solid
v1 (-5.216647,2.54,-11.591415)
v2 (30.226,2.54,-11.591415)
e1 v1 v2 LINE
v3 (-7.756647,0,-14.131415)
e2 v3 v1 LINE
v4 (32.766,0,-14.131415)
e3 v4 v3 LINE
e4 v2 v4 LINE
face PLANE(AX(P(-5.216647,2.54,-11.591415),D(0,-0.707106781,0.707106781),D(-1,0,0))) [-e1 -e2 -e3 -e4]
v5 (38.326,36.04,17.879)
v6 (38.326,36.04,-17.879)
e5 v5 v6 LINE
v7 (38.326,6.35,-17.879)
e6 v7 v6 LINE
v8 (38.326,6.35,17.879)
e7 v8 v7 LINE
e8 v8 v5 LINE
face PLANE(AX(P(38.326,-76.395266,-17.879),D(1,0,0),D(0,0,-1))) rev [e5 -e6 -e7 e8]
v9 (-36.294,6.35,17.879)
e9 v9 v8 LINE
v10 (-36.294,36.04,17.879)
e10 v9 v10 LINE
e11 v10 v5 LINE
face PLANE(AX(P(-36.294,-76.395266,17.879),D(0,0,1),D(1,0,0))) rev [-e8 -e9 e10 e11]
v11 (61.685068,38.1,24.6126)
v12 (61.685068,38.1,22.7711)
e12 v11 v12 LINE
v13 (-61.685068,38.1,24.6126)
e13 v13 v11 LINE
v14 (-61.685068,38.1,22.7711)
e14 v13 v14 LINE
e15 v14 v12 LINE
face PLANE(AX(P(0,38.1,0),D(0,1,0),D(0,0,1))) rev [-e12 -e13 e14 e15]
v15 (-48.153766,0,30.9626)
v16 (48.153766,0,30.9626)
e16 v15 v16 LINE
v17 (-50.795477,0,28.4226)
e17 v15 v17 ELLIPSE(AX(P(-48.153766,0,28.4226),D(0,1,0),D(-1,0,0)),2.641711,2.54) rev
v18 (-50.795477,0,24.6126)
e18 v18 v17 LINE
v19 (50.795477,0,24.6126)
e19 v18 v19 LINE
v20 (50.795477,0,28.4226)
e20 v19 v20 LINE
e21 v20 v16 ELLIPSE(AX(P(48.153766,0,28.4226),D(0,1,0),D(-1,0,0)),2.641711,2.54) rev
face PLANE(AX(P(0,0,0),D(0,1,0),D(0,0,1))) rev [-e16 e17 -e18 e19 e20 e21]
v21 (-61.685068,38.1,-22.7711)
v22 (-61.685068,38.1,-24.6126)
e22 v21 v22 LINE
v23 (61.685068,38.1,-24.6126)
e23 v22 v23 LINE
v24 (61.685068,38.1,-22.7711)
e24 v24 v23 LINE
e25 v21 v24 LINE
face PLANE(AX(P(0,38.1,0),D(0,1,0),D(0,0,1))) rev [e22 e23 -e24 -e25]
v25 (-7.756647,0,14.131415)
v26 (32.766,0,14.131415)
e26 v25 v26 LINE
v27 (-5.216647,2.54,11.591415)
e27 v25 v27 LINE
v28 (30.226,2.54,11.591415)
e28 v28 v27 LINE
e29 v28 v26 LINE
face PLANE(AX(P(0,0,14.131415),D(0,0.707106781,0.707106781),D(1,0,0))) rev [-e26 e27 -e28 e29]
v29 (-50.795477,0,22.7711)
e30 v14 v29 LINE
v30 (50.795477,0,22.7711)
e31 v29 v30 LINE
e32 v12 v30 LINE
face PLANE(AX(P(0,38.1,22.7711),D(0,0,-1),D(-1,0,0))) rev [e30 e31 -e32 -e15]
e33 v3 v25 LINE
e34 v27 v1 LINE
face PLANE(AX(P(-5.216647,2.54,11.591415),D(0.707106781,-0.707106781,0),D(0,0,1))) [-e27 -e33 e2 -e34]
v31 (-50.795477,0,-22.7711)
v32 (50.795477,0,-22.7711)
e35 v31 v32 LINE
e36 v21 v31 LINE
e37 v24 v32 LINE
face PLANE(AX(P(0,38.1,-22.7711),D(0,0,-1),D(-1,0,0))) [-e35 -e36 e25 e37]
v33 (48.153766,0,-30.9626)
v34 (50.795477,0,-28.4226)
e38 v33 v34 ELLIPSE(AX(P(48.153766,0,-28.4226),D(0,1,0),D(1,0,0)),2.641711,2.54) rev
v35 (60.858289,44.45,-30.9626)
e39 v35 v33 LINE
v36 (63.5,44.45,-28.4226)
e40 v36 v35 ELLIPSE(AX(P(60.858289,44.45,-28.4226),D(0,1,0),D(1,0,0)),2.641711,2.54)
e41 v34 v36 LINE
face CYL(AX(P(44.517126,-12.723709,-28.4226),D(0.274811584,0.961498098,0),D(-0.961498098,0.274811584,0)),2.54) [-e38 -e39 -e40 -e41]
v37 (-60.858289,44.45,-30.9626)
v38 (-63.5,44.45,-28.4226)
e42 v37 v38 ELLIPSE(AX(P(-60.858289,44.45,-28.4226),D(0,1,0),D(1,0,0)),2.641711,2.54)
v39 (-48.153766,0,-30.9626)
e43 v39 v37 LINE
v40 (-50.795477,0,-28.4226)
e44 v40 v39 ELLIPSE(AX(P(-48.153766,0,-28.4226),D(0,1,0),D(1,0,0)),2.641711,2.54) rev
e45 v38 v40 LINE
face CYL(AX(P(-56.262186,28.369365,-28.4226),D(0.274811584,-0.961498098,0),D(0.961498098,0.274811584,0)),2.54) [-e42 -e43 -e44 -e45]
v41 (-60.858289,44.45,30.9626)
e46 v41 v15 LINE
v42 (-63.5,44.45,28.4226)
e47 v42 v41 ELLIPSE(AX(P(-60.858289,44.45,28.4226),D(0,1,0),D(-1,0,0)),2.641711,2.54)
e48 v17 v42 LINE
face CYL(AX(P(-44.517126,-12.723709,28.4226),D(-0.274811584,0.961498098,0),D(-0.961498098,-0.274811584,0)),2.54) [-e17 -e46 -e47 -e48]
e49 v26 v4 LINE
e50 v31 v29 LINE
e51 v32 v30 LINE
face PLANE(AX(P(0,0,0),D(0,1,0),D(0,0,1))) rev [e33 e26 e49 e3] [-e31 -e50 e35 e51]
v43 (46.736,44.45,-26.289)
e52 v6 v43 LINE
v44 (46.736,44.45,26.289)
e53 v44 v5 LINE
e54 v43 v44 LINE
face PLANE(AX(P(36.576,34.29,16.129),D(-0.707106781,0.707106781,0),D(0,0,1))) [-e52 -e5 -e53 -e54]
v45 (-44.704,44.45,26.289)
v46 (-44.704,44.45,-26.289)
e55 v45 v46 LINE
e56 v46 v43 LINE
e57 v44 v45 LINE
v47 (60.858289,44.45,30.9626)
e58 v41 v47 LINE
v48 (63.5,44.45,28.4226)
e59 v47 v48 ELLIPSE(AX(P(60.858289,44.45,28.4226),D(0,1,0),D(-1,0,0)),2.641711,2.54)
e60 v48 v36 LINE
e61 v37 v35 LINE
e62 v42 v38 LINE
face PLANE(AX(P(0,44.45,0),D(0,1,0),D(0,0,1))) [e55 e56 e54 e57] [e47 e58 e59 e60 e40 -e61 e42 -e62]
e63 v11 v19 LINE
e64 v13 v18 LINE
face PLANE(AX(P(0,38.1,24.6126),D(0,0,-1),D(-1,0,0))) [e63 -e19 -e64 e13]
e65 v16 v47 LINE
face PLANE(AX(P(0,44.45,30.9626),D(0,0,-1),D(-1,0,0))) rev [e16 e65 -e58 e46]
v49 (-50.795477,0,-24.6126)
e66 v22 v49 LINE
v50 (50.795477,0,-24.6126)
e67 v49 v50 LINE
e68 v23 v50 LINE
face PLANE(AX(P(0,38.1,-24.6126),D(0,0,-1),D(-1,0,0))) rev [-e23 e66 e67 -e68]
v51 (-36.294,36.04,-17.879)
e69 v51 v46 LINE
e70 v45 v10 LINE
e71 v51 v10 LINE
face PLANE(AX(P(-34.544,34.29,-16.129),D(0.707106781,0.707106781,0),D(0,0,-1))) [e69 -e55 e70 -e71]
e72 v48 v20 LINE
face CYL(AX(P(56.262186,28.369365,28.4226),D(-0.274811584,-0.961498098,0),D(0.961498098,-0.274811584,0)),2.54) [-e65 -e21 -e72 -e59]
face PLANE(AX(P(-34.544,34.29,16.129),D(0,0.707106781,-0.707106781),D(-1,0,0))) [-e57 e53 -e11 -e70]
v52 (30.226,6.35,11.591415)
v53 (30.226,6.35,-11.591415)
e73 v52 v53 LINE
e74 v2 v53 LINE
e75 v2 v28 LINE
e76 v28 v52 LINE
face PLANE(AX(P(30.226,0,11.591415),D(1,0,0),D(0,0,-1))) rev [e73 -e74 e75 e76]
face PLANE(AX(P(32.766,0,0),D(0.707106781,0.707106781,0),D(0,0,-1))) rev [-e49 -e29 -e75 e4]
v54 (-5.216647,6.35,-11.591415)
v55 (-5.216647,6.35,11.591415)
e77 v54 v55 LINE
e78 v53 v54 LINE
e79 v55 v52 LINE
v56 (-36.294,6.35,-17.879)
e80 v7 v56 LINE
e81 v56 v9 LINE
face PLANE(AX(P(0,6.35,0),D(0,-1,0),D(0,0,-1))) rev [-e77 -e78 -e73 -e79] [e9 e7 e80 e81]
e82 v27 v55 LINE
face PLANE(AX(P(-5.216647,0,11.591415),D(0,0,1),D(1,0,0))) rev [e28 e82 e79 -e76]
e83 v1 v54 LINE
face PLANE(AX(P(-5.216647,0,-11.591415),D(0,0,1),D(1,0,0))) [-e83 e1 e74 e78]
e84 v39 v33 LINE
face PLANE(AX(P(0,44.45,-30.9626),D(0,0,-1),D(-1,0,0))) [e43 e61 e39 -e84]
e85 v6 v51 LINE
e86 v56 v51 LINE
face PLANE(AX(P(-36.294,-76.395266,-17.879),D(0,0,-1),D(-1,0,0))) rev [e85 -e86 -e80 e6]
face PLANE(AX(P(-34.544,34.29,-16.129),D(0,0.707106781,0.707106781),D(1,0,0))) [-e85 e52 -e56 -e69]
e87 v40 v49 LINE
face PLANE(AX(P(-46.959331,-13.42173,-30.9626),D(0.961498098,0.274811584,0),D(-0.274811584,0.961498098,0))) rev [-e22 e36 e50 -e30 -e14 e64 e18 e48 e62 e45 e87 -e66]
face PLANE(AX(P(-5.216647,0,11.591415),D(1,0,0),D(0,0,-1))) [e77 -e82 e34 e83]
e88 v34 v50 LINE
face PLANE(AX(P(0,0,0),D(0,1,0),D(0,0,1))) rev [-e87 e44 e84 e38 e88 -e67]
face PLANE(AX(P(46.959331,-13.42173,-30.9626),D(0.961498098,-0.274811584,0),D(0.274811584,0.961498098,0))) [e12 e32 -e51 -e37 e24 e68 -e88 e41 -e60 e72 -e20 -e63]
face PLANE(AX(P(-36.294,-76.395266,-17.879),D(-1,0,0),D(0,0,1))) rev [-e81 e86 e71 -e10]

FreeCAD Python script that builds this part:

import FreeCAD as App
import Part
import Sketcher
Q = App.Units.Quantity


def edges_at(feature, points):
    """Names of the edges that pass closest to the given points."""
    edges = feature.Shape.Edges
    near = lambda p: min(range(len(edges)), key=lambda i: edges[i].distToShape(Part.Vertex(*p))[0])
    return sorted({f"Edge{near(p) + 1}" for p in points})


def add_polygon(sketch, points):
    """Adds a closed chain of lines whose ends are joined by coincident constraints."""
    first, n = sketch.GeometryCount, len(points)
    for a, b in zip(points, points[1:] + points[:1]):
        sketch.addGeometry(Part.LineSegment(App.Vector(*a, 0), App.Vector(*b, 0)), False)
    for i in range(n):
        sketch.addConstraint(Sketcher.Constraint("Coincident", first + i, 2, first + (i + 1) % n, 1))

doc = App.newDocument("Part")
body = doc.addObject("PartDesign::Body", "Body")

# Sketch on XZ plane
sketch1 = body.newObject("Sketcher::SketchObject", "Sketch")
sketch1.AttachmentSupport = (doc.getObject("XZ_Plane"), [""])
sketch1.MapMode = "FlatFace"
add_polygon(sketch1, [(-64, -31), (-64, 31), (64, 31), (64, -31)])  # lines 0-3
sketch1.addConstraint(Sketcher.Constraint("Vertical", 0))
sketch1.addConstraint(Sketcher.Constraint("Horizontal", 1))
sketch1.addConstraint(Sketcher.Constraint("Vertical", 2))
sketch1.addConstraint(Sketcher.Constraint("Horizontal", 3))
sketch1.addConstraint(Sketcher.Constraint("Symmetric", 0, 2, 2, 2, -1, 1))
sketch1.addConstraint(Sketcher.Constraint("DistanceX", 1, 1, 1, 2, Q("5 in")))
sketch1.addConstraint(Sketcher.Constraint("DistanceY", 0, 1, 0, 2, Q("2.438 in")))
pad1 = body.newObject("PartDesign::Pad", "Pad")
pad1.Profile = sketch1
pad1.Length = Q("1.75 in")
pad1.Reversed = True

# Sketch on XZ plane
sketch2 = body.newObject("Sketcher::SketchObject", "Sketch001")
sketch2.AttachmentSupport = (doc.getObject("XZ_Plane"), [""])
sketch2.MapMode = "FlatFace"
add_polygon(sketch2, [(-63.5, -24.6), (-63.5, -22.8), (63.5, -22.8), (63.5, -24.6)])  # lines 0-3
add_polygon(sketch2, [(-63.5, 22.8), (-63.5, 24.6), (63.5, 24.6), (63.5, 22.8)])  # lines 4-7
sketch2.addConstraint(Sketcher.Constraint("Vertical", 0))
sketch2.addConstraint(Sketcher.Constraint("Horizontal", 1))
sketch2.addConstraint(Sketcher.Constraint("Vertical", 2))
sketch2.addConstraint(Sketcher.Constraint("Horizontal", 3))
sketch2.addConstraint(Sketcher.Constraint("Vertical", 4))
sketch2.addConstraint(Sketcher.Constraint("Horizontal", 5))
sketch2.addConstraint(Sketcher.Constraint("Vertical", 6))
sketch2.addConstraint(Sketcher.Constraint("Horizontal", 7))
sketch2.addConstraint(Sketcher.Constraint("Symmetric", 2, 2, 4, 2, -1, 1))
sketch2.addConstraint(Sketcher.Constraint("Symmetric", 0, 2, 6, 2, -1, 1))
sketch2.addConstraint(Sketcher.Constraint("Vertical", 3, 2, 4, 2))
sketch2.addConstraint(Sketcher.Constraint("DistanceX", 1, 1, 1, 2, Q("5 in")))
sketch2.addConstraint(Sketcher.Constraint("DistanceY", 0, 1, 0, 2, Q("0.0725 in")))
sketch2.addConstraint(Sketcher.Constraint("DistanceY", 2, 2, -1, 1, Q("0.969 in")))
pocket1 = body.newObject("PartDesign::Pocket", "Pocket")
pocket1.Profile = sketch2
pocket1.Length = Q("1.5 in")

# Sketch on XZ plane
sketch3 = body.newObject("Sketcher::SketchObject", "Sketch002")
sketch3.AttachmentSupport = (doc.getObject("XZ_Plane"), [""])
sketch3.MapMode = "FlatFace"
sketch3.AttachmentOffset = App.Placement(App.Vector(0, 0, -1.75 * 25.4), App.Rotation())
add_polygon(sketch3, [(-35, -16), (-35, 16), (37, 16), (37, -16)])  # lines 0-3
add_polygon(sketch3, [(30, 12), (-5, 12), (-5, -12), (30, -12)])  # lines 4-7
sketch3.addConstraint(Sketcher.Constraint("Vertical", 0))
sketch3.addConstraint(Sketcher.Constraint("Horizontal", 1))
sketch3.addConstraint(Sketcher.Constraint("Vertical", 2))
sketch3.addConstraint(Sketcher.Constraint("Horizontal", 3))
sketch3.addConstraint(Sketcher.Constraint("Horizontal", 4))
sketch3.addConstraint(Sketcher.Constraint("Vertical", 5))
sketch3.addConstraint(Sketcher.Constraint("Horizontal", 6))
sketch3.addConstraint(Sketcher.Constraint("Vertical", 7))
sketch3.addConstraint(Sketcher.Constraint("DistanceX", 1, 1, 1, 2, Q("2.8 in")))
sketch3.addConstraint(Sketcher.Constraint("DistanceY", 0, 1, 0, 2, Q("1.27 in")))
sketch3.addConstraint(Sketcher.Constraint("DistanceX", 0, 2, -1, 1, Q("1.36 in")))
sketch3.addConstraint(Sketcher.Constraint("DistanceX", -1, 1, 6, 2, Q("1.19 in")))
sketch3.addConstraint(Sketcher.Constraint("DistanceY", -1, 1, 0, 2, Q("0.635 in")))
sketch3.addConstraint(Sketcher.Constraint("DistanceY", 5, 2, 5, 1, Q("23.182829 mm")))
sketch3.addConstraint(Sketcher.Constraint("DistanceX", 4, 2, 4, 1, Q("35.442647 mm")))
sketch3.addConstraint(Sketcher.Constraint("DistanceY", -1, 1, 4, 2, Q("11.591415 mm")))
pocket2 = body.newObject("PartDesign::Pocket", "Pocket001")
pocket2.Profile = sketch3
pocket2.Length = Q("1.5 in")
pocket2.Reversed = True
doc.recompute()

chamfer = body.newObject("PartDesign::Chamfer", "Chamfer")
chamfer.Base = (pocket2, edges_at(pocket2, [
    (36.576, 44.45, 0),
    (1.016, 44.45, -16.129),
    (-34.544, 44.45, 0),
    (1.016, 44.45, 16.129),
]))
chamfer.Size = Q("0.4 in")

# Sketch on XY plane
sketch4 = body.newObject("Sketcher::SketchObject", "Sketch003")
sketch4.AttachmentSupport = (doc.getObject("XY_Plane"), [""])
sketch4.MapMode = "FlatFace"
sketch4.AttachmentOffset = App.Placement(App.Vector(0, 0, 1.219 * 25.4), App.Rotation())
add_polygon(sketch4, [(-51, 0), (-64, 44), (-64, 0)])  # lines 0-2
add_polygon(sketch4, [(64, 44), (51, 0), (64, 0)])  # lines 3-5
sketch4.addConstraint(Sketcher.Constraint("Vertical", 1))
sketch4.addConstraint(Sketcher.Constraint("Horizontal", 2))
sketch4.addConstraint(Sketcher.Constraint("Horizontal", 4))
sketch4.addConstraint(Sketcher.Constraint("Vertical", 5))
sketch4.addConstraint(Sketcher.Constraint("Symmetric", 2, 2, 3, 2, -1, 1))
sketch4.addConstraint(Sketcher.Constraint("Symmetric", 1, 2, 4, 2, -2))
sketch4.addConstraint(Sketcher.Constraint("Horizontal", 0, 2, 5, 2))
sketch4.addConstraint(Sketcher.Constraint("DistanceX", 1, 2, 4, 2, Q("5 in")))
sketch4.addConstraint(Sketcher.Constraint("DistanceY", 1, 2, 1, 1, Q("1.75 in")))
sketch4.addConstraint(Sketcher.Constraint("Distance", 0, Q("46.229941 mm")))
pocket3 = body.newObject("PartDesign::Pocket", "Pocket002")
pocket3.Profile = sketch4
pocket3.Type = "ThroughAll"
doc.recompute()

fillet = body.newObject("PartDesign::Fillet", "Fillet")
fillet.Base = (pocket3, edges_at(pocket3, [
    (-57.148, 22.225, -30.963),
    (-57.148, 22.225, 30.963),
    (57.148, 22.225, 30.963),
    (57.148, 22.225, -30.963),
]))
fillet.Radius = Q("0.1 in")

# Sketch on XZ plane
sketch5 = body.newObject("Sketcher::SketchObject", "Sketch004")
sketch5.AttachmentSupport = (doc.getObject("XZ_Plane"), [""])
sketch5.MapMode = "FlatFace"
sketch5.AttachmentOffset = App.Placement(App.Vector(0, 0, -1.75 * 25.4), App.Rotation())
add_polygon(sketch5, [(-5, -12), (-5, 12), (30, 12), (30, -12)])  # lines 0-3
sketch5.addConstraint(Sketcher.Constraint("Vertical", 0))
sketch5.addConstraint(Sketcher.Constraint("Horizontal", 1))
sketch5.addConstraint(Sketcher.Constraint("Vertical", 2))
sketch5.addConstraint(Sketcher.Constraint("Horizontal", 3))
sketch5.addConstraint(Sketcher.Constraint("DistanceX", -1, 1, 1, 2, Q("1.19 in")))
sketch5.addConstraint(Sketcher.Constraint("DistanceY", 0, 1, 0, 2, Q("23.182829 mm")))
sketch5.addConstraint(Sketcher.Constraint("DistanceX", 1, 1, 1, 2, Q("35.442647 mm")))
sketch5.addConstraint(Sketcher.Constraint("DistanceY", -1, 1, 0, 2, Q("11.591415 mm")))
pocket4 = body.newObject("PartDesign::Pocket", "Pocket003")
pocket4.Profile = sketch5
pocket4.Type = "ThroughAll"
pocket4.Reversed = True
doc.recompute()

chamfer2 = body.newObject("PartDesign::Chamfer", "Chamfer001")
chamfer2.Base = (pocket4, edges_at(pocket4, [
    (30.226, 0, 0),
    (12.505, 0, 11.591),
    (-5.217, 0, 0),
    (12.505, 0, -11.591),
]))
chamfer2.Size = Q("0.1 in")

# Sketch on XZ plane
sketch6 = body.newObject("Sketcher::SketchObject", "Sketch005")
sketch6.AttachmentSupport = (doc.getObject("XZ_Plane"), [""])
sketch6.MapMode = "FlatFace"
sketch6.AttachmentOffset = App.Placement(App.Vector(0, 0, -1.75 * 25.4), App.Rotation())
add_polygon(sketch6, [(-36, -18), (-36, 18), (38, 18), (38, -18)])  # lines 0-3
sketch6.addConstraint(Sketcher.Constraint("Vertical", 0))
sketch6.addConstraint(Sketcher.Constraint("Horizontal", 1))
sketch6.addConstraint(Sketcher.Constraint("Vertical", 2))
sketch6.addConstraint(Sketcher.Constraint("Horizontal", 3))
sketch6.addConstraint(Sketcher.Constraint("DistanceX", 1, 1, 1, 2, Q("74.62 mm")))
sketch6.addConstraint(Sketcher.Constraint("DistanceY", 0, 1, 0, 2, Q("35.758 mm")))
sketch6.addConstraint(Sketcher.Constraint("DistanceX", 0, 2, -1, 1, Q("36.294 mm")))
sketch6.addConstraint(Sketcher.Constraint("DistanceY", -1, 1, 0, 2, Q("17.879 mm")))
pocket5 = body.newObject("PartDesign::Pocket", "Pocket004")
pocket5.Profile = sketch6
pocket5.Length = Q("1.5 in")
pocket5.Reversed = True

doc.recompute()
